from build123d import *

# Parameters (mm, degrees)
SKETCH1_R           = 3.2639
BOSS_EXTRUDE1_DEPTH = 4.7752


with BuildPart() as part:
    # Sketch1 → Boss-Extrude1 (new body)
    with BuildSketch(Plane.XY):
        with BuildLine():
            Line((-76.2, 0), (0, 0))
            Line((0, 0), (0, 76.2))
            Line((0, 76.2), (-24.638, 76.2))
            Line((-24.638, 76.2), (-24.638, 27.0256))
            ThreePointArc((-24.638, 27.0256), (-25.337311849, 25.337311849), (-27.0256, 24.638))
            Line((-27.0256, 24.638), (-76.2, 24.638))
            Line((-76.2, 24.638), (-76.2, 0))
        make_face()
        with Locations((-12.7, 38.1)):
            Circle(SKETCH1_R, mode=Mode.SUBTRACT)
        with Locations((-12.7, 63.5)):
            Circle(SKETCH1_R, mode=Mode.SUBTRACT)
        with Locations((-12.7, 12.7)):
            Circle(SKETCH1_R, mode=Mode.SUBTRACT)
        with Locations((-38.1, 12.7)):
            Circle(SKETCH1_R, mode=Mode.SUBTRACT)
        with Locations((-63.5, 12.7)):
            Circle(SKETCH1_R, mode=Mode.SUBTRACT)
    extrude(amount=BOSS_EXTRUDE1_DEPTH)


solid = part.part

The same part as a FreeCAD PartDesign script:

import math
import FreeCAD as App
import Part
import Sketcher

V = App.Vector
Q = App.Units.Quantity

doc = App.newDocument("Part")
body = doc.addObject("PartDesign::Body", "Body")

# Sketch on XY plane
sketch1 = body.newObject("Sketcher::SketchObject", "Sketch")
sketch1.AttachmentSupport = (doc.getObject("XY_Plane"), [""])
sketch1.MapMode = "FlatFace"
sketch1.addGeometry([
    Part.LineSegment(V(-76.2, 0, 0), V(0, 0, 0)),  # 0
    Part.LineSegment(V(0, 0, 0), V(0, 76.2, 0)),  # 1
    Part.LineSegment(V(0, 76.2, 0), V(-24.6, 76.2, 0)),  # 2
    Part.LineSegment(V(-24.6, 76.2, 0), V(-24.6, 27, 0)),  # 3
    Part.ArcOfCircle(Part.Circle(V(-27, 27, 0), V(0, 0, 1), 2.4), math.radians(-90), math.radians(0)),  # 4
    Part.LineSegment(V(-27, 24.6, 0), V(-76.2, 24.6, 0)),  # 5
    Part.LineSegment(V(-76.2, 24.6, 0), V(-76.2, 0, 0)),  # 6
    Part.Circle(V(-63.5, 12.7, 0), V(0, 0, 1), 3.3),  # 7
    Part.Circle(V(-38.1, 12.7, 0), V(0, 0, 1), 3.3),  # 8
    Part.Circle(V(-12.7, 12.7, 0), V(0, 0, 1), 3.3),  # 9
    Part.Circle(V(-12.7, 38.1, 0), V(0, 0, 1), 3.3),  # 10
    Part.Circle(V(-12.7, 63.5, 0), V(0, 0, 1), 3.3),  # 11
], False)
sketch1.addConstraint([
    Sketcher.Constraint("Coincident", 0, 2, 1, 1),
    Sketcher.Constraint("Coincident", 1, 2, 2, 1),
    Sketcher.Constraint("Coincident", 2, 2, 3, 1),
    Sketcher.Constraint("Tangent", 3, 2, 4, 2),
    Sketcher.Constraint("Tangent", 4, 1, 5, 1),
    Sketcher.Constraint("Coincident", 5, 2, 6, 1),
    Sketcher.Constraint("Coincident", 6, 2, 0, 1),
    Sketcher.Constraint("Horizontal", 0),
    Sketcher.Constraint("Vertical", 1),
    Sketcher.Constraint("Horizontal", 2),
    Sketcher.Constraint("Vertical", 3),
    Sketcher.Constraint("Horizontal", 5),
    Sketcher.Constraint("Vertical", 6),
    Sketcher.Constraint("Coincident", 0, 2, -1, 1),
    Sketcher.Constraint("Equal", 7, 8),
    Sketcher.Constraint("Equal", 8, 9),
    Sketcher.Constraint("Equal", 9, 10),
    Sketcher.Constraint("Equal", 10, 11),
    Sketcher.Constraint("Horizontal", 7, 3, 8, 3),
    Sketcher.Constraint("Horizontal", 8, 3, 9, 3),
    Sketcher.Constraint("Vertical", 9, 3, 10, 3),
    Sketcher.Constraint("Vertical", 10, 3, 11, 3),
    Sketcher.Constraint("Equal", 0, 1),
    Sketcher.Constraint("Equal", 5, 3),
    Sketcher.Constraint("DistanceX", 0, 1, 0, 2, Q("3 in")),
    Sketcher.Constraint("Diameter", 7, Q("0.257 in")),
    Sketcher.Constraint("Radius", 4, Q("0.094 in")),
    Sketcher.Constraint("DistanceX", 7, 3, 8, 3, Q("1 in")),
    Sketcher.Constraint("DistanceX", 8, 3, 9, 3, Q("1 in")),
    Sketcher.Constraint("DistanceY", 9, 3, 10, 3, Q("1 in")),
    Sketcher.Constraint("DistanceY", 10, 3, 11, 3, Q("1 in")),
    Sketcher.Constraint("DistanceX", 2, 2, 2, 1, Q("0.97 in")),
    Sketcher.Constraint("DistanceX", 7, 3, -1, 1, Q("2.5 in")),
    Sketcher.Constraint("DistanceY", -1, 1, 7, 3, Q("0.5 in")),
])
pad1 = body.newObject("PartDesign::Pad", "Pad")
pad1.Profile = sketch1
pad1.Length = Q("0.188 in")

doc.recompute()
